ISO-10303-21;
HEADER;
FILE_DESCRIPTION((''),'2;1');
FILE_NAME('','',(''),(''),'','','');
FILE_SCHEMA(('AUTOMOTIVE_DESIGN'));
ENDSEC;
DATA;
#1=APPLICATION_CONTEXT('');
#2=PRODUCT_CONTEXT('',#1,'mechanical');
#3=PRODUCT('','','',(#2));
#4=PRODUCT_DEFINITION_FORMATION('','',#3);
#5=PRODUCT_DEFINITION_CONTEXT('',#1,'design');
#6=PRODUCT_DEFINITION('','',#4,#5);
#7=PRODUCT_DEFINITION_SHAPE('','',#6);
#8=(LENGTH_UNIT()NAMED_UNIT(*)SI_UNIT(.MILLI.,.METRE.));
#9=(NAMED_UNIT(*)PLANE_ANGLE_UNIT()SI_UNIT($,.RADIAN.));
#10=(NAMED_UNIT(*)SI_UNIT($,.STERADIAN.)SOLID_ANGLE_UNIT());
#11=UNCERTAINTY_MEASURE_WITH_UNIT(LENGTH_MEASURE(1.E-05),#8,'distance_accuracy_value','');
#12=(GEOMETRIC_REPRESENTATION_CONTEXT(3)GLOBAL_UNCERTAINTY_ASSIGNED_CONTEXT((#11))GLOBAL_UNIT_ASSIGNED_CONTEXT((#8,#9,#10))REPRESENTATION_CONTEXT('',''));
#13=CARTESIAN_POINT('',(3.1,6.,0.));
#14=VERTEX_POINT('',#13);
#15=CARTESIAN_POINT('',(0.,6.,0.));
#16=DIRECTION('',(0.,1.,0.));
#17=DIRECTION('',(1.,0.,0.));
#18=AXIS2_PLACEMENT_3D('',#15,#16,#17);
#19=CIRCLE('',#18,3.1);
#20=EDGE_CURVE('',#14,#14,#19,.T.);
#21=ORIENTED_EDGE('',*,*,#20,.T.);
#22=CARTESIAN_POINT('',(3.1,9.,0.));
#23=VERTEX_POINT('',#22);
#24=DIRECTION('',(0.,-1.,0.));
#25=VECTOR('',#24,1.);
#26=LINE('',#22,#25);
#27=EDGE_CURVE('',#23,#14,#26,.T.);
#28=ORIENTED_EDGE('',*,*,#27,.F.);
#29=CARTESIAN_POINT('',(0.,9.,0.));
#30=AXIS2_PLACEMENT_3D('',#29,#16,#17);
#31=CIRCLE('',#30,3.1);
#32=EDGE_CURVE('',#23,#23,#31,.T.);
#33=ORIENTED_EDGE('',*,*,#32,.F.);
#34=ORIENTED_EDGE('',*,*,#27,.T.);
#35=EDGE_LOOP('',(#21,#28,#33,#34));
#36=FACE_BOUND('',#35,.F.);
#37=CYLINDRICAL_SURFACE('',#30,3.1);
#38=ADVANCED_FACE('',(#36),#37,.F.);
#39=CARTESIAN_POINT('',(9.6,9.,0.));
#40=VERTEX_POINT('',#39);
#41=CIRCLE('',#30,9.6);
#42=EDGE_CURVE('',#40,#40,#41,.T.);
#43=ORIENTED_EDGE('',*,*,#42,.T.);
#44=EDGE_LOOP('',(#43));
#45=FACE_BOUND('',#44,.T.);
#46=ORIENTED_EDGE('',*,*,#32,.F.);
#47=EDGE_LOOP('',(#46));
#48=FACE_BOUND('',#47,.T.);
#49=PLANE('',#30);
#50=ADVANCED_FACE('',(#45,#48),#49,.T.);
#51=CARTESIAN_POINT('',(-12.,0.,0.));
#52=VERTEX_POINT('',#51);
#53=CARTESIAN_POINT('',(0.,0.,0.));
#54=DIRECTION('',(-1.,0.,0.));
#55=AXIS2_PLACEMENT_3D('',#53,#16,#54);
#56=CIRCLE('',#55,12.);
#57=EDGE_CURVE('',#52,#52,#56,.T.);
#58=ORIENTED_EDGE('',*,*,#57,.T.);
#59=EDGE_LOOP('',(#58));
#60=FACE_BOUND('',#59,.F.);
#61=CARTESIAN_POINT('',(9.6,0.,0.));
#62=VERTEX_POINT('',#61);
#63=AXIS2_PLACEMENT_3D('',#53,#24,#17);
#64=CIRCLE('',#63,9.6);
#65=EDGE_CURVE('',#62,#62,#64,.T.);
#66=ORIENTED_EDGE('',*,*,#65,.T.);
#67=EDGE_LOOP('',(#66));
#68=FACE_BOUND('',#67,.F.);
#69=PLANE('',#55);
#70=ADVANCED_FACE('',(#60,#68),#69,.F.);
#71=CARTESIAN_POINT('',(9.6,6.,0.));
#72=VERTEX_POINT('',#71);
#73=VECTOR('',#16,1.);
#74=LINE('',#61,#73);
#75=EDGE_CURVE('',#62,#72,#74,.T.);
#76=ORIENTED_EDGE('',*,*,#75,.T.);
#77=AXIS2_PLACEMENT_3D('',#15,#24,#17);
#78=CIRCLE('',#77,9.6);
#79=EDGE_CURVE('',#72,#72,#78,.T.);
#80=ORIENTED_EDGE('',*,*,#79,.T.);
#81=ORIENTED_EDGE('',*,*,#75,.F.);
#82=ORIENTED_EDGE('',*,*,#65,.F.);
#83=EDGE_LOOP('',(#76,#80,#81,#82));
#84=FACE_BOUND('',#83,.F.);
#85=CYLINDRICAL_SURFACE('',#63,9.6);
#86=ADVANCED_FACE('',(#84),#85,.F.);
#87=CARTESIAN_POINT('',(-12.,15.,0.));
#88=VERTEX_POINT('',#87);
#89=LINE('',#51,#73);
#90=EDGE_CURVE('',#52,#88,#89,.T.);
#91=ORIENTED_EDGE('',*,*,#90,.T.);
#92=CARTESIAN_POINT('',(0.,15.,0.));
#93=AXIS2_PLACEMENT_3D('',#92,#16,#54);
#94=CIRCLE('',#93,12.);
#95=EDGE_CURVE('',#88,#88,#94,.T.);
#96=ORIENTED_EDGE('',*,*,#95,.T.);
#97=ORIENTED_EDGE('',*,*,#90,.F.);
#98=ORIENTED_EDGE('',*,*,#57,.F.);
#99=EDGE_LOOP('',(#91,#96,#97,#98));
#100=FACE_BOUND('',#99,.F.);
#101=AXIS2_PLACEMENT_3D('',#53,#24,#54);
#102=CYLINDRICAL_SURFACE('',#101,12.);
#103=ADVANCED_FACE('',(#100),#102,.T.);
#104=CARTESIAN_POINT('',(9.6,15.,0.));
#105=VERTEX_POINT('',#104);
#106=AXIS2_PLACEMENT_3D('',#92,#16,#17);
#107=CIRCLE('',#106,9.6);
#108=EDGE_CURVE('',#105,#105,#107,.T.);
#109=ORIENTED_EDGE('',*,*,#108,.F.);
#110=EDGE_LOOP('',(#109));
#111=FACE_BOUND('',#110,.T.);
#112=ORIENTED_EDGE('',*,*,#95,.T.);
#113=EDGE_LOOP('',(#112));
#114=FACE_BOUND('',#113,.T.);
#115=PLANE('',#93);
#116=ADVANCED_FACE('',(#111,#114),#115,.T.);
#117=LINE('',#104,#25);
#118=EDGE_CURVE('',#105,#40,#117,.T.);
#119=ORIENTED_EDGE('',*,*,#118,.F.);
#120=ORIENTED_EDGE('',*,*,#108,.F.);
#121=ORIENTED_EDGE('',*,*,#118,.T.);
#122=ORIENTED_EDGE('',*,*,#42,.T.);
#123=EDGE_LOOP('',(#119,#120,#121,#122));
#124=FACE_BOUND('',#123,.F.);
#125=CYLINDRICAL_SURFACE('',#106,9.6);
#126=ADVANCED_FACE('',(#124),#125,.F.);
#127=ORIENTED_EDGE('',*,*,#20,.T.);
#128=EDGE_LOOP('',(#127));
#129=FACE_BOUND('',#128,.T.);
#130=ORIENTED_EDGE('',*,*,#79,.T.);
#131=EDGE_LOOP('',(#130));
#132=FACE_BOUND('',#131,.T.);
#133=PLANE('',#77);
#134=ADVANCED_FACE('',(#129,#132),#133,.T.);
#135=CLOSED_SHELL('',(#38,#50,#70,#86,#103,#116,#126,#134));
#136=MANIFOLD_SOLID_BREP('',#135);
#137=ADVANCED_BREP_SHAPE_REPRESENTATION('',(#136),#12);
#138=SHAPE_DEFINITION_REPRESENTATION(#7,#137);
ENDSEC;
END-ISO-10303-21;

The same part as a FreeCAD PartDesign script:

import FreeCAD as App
import Part
import Sketcher
from FreeCAD import Vector
Q = App.Units.Quantity

doc = App.newDocument("Part")
params = doc.addObject("Spreadsheet::Sheet", "Params")
for row, (alias, value) in enumerate([
    ("sketch1_diameter", "24 mm"),
    ("pad1_length", "15 mm"),
    ("sketch2_diameter", "19.2 mm"),
    ("pocket1_length", "6 mm"),
    ("sketch3_diameter", "19.2 mm"),
    ("pocket2_length", "6 mm"),
    ("sketch4_diameter", "6.2 mm"),
    ("pocket3_length", "6 mm"),
], start=1):
    params.set(f"A{row}", alias)
    params.set(f"B{row}", "=" + value)
    params.setAlias(f"B{row}", alias)

body = doc.addObject("PartDesign::Body", "Body")

# Sketch on XZ plane
sketch1 = body.newObject("Sketcher::SketchObject", "Sketch")
sketch1.AttachmentSupport = (doc.getObject("XZ_Plane"), [""])
sketch1.MapMode = "FlatFace"
sketch1.addGeometry(Part.Circle(Vector(0, 0, 0), Vector(0, 0, 1), 12), False)
sketch1.addConstraint([
    Sketcher.Constraint("Coincident", 0, 3, -1, 1),
    Sketcher.Constraint("Diameter", 0, Q("24 mm")),
])
sketch1.setExpression("Constraints[1]", "Params.sketch1_diameter")
pad1 = body.newObject("PartDesign::Pad", "Pad")
pad1.Profile = sketch1
pad1.setExpression("Length", "Params.pad1_length")
pad1.Reversed = True

# Sketch on XZ plane
sketch2 = body.newObject("Sketcher::SketchObject", "Sketch001")
sketch2.AttachmentSupport = (doc.getObject("XZ_Plane"), [""])
sketch2.MapMode = "FlatFace"
sketch2.AttachmentOffset = App.Placement(Vector(0, 0, -15), App.Rotation())
sketch2.addGeometry(Part.Circle(Vector(0, 0, 0), Vector(0, 0, 1), 10), False)
sketch2.addConstraint([
    Sketcher.Constraint("Coincident", 0, 3, -1, 1),
    Sketcher.Constraint("Diameter", 0, Q("19.2 mm")),
])
sketch2.setExpression("Constraints[1]", "Params.sketch2_diameter")
pocket1 = body.newObject("PartDesign::Pocket", "Pocket")
pocket1.Profile = sketch2
pocket1.setExpression("Length", "Params.pocket1_length")
pocket1.Reversed = True

# Sketch on XZ plane
sketch3 = body.newObject("Sketcher::SketchObject", "Sketch002")
sketch3.AttachmentSupport = (doc.getObject("XZ_Plane"), [""])
sketch3.MapMode = "FlatFace"
sketch3.addGeometry(Part.Circle(Vector(0, 0, 0), Vector(0, 0, 1), 10), False)
sketch3.addConstraint([
    Sketcher.Constraint("Coincident", 0, 3, -1, 1),
    Sketcher.Constraint("Diameter", 0, Q("19.2 mm")),
])
sketch3.setExpression("Constraints[1]", "Params.sketch3_diameter")
pocket2 = body.newObject("PartDesign::Pocket", "Pocket001")
pocket2.Profile = sketch3
pocket2.setExpression("Length", "Params.pocket2_length")

# Sketch on XZ plane
sketch4 = body.newObject("Sketcher::SketchObject", "Sketch003")
sketch4.AttachmentSupport = (doc.getObject("XZ_Plane"), [""])
sketch4.MapMode = "FlatFace"
sketch4.AttachmentOffset = App.Placement(Vector(0, 0, -9), App.Rotation())
sketch4.addGeometry(Part.Circle(Vector(0, 0, 0), Vector(0, 0, 1), 3.1), False)
sketch4.addConstraint([
    Sketcher.Constraint("Coincident", 0, 3, -1, 1),
    Sketcher.Constraint("Diameter", 0, Q("6.2 mm")),
])
sketch4.setExpression("Constraints[1]", "Params.sketch4_diameter")
pocket3 = body.newObject("PartDesign::Pocket", "Pocket002")
pocket3.Profile = sketch4
pocket3.setExpression("Length", "Params.pocket3_length")
pocket3.Reversed = True

doc.recompute()
